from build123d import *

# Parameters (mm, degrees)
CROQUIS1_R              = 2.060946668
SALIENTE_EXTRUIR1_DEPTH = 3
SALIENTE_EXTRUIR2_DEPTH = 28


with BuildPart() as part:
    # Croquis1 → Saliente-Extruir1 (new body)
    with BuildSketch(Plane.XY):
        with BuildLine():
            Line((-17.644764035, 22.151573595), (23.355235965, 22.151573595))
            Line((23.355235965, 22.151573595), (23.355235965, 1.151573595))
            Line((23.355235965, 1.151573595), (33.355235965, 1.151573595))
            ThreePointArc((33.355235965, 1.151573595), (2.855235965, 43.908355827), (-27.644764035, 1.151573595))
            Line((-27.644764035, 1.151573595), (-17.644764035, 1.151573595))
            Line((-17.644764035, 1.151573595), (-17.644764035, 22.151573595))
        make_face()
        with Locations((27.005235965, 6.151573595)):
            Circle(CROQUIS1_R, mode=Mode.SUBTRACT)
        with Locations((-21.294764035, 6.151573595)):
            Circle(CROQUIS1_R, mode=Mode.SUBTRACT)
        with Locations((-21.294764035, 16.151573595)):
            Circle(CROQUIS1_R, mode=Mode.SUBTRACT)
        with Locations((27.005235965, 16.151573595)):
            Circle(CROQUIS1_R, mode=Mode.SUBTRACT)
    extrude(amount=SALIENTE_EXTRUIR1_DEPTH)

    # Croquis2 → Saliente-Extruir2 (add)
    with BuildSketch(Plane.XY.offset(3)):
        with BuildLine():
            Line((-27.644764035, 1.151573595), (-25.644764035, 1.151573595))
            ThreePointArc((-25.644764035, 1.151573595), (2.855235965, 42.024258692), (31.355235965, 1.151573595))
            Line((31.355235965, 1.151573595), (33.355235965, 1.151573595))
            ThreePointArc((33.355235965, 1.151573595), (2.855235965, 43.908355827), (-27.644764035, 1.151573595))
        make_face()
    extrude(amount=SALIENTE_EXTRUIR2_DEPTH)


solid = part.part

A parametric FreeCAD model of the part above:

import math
import FreeCAD as App
import Part
import Sketcher
from FreeCAD import Vector

doc = App.newDocument("Part")
body = doc.addObject("PartDesign::Body", "Body")

sketch1 = body.newObject("Sketcher::SketchObject", "Sketch")
sketch1.AttachmentSupport = (doc.getObject("XY_Plane"), [""])
sketch1.MapMode = "FlatFace"
sketch1.addGeometry(Part.LineSegment(Vector(-17.6, 22.2, 0), Vector(23.4, 22.2, 0)), False)
sketch1.addGeometry(Part.LineSegment(Vector(23.4, 22.2, 0), Vector(23.4, 1.2, 0)), False)
sketch1.addGeometry(Part.LineSegment(Vector(23.4, 1.2, 0), Vector(33.4, 1.2, 0)), False)
sketch1.addGeometry(Part.ArcOfCircle(Part.Circle(Vector(2.9, 11.7, 0), Vector(0, 0, 1), 32.3), math.radians(-19), math.radians(199)), False)
sketch1.addGeometry(Part.LineSegment(Vector(-27.6, 1.2, 0), Vector(-17.6, 1.2, 0)), False)
sketch1.addGeometry(Part.LineSegment(Vector(-17.6, 1.2, 0), Vector(-17.6, 22.2, 0)), False)
sketch1.addGeometry(Part.Circle(Vector(-21.3, 6.2, 0), Vector(0, 0, 1), 2.1), False)
sketch1.addGeometry(Part.Circle(Vector(27, 6.2, 0), Vector(0, 0, 1), 2.1), False)
sketch1.addGeometry(Part.Circle(Vector(-21.3, 16.2, 0), Vector(0, 0, 1), 2.1), False)
sketch1.addGeometry(Part.Circle(Vector(27, 16.2, 0), Vector(0, 0, 1), 2.1), False)
sketch1.addConstraint(Sketcher.Constraint("Coincident", 0, 2, 1, 1))
sketch1.addConstraint(Sketcher.Constraint("Coincident", 1, 2, 2, 1))
sketch1.addConstraint(Sketcher.Constraint("Coincident", 2, 2, 3, 1))
sketch1.addConstraint(Sketcher.Constraint("Coincident", 3, 2, 4, 1))
sketch1.addConstraint(Sketcher.Constraint("Coincident", 4, 2, 5, 1))
sketch1.addConstraint(Sketcher.Constraint("Coincident", 5, 2, 0, 1))
sketch1.addConstraint(Sketcher.Constraint("Horizontal", 0))
sketch1.addConstraint(Sketcher.Constraint("Vertical", 1))
sketch1.addConstraint(Sketcher.Constraint("Horizontal", 2))
sketch1.addConstraint(Sketcher.Constraint("Horizontal", 4))
sketch1.addConstraint(Sketcher.Constraint("Vertical", 5))
sketch1.addConstraint(Sketcher.Constraint("Equal", 6, 7))
sketch1.addConstraint(Sketcher.Constraint("Equal", 7, 8))
sketch1.addConstraint(Sketcher.Constraint("Equal", 8, 9))
sketch1.addConstraint(Sketcher.Constraint("Horizontal", 6, 3, 7, 3))
sketch1.addConstraint(Sketcher.Constraint("Horizontal", 8, 3, 9, 3))
sketch1.addConstraint(Sketcher.Constraint("Horizontal", 2, 2, 3, 2))
sketch1.addConstraint(Sketcher.Constraint("Vertical", 6, 3, 8, 3))
sketch1.addConstraint(Sketcher.Constraint("Vertical", 7, 3, 9, 3))
sketch1.addConstraint(Sketcher.Constraint("Equal", 2, 4))
sketch1.addConstraint(Sketcher.Constraint("DistanceX", 0, 1, 0, 2, 41.0))
sketch1.addConstraint(Sketcher.Constraint("DistanceX", 2, 1, 2, 2, 10.0))
sketch1.addConstraint(Sketcher.Constraint("DistanceY", 1, 2, 1, 1, 21.0))
sketch1.addConstraint(Sketcher.Constraint("DistanceY", 6, 3, 8, 3, 10.0))
sketch1.addConstraint(Sketcher.Constraint("DistanceY", 9, 3, 0, 2, 6.0))
sketch1.addConstraint(Sketcher.Constraint("DistanceY", 6, 3, 3, 3, 5.5))
sketch1.addConstraint(Sketcher.Constraint("DistanceX", 6, 3, 7, 3, 48.3))
sketch1.addConstraint(Sketcher.Constraint("DistanceX", 6, 3, 3, 3, 24.15))
sketch1.addConstraint(Sketcher.Constraint("Diameter", 6, 4.121893))
sketch1.addConstraint(Sketcher.Constraint("DistanceX", -1, 1, 3, 3, 2.855236))
sketch1.addConstraint(Sketcher.Constraint("DistanceY", -1, 1, 3, 3, 11.651574))
pad1 = body.newObject("PartDesign::Pad", "Pad")
pad1.Profile = sketch1
pad1.Length = 3

sketch2 = body.newObject("Sketcher::SketchObject", "Sketch001")
sketch2.AttachmentSupport = (doc.getObject("XY_Plane"), [""])
sketch2.MapMode = "FlatFace"
sketch2.AttachmentOffset = App.Placement(Vector(0, 0, 3), App.Rotation())
sketch2.addGeometry(Part.LineSegment(Vector(-27.6, 1.2, 0), Vector(-25.6, 1.2, 0)), False)
sketch2.addGeometry(Part.ArcOfCircle(Part.Circle(Vector(2.9, 11.7, 0), Vector(0, 0, 1), 30.4), math.radians(-20), math.radians(200)), False)
sketch2.addGeometry(Part.LineSegment(Vector(31.4, 1.2, 0), Vector(33.4, 1.2, 0)), False)
sketch2.addGeometry(Part.ArcOfCircle(Part.Circle(Vector(2.9, 11.7, 0), Vector(0, 0, 1), 32.3), math.radians(-19), math.radians(199)), False)
sketch2.addConstraint(Sketcher.Constraint("Coincident", 0, 2, 1, 2))
sketch2.addConstraint(Sketcher.Constraint("Coincident", 1, 1, 2, 1))
sketch2.addConstraint(Sketcher.Constraint("Coincident", 2, 2, 3, 1))
sketch2.addConstraint(Sketcher.Constraint("Coincident", 3, 2, 0, 1))
sketch2.addConstraint(Sketcher.Constraint("Horizontal", 0))
sketch2.addConstraint(Sketcher.Constraint("Horizontal", 2))
sketch2.addConstraint(Sketcher.Constraint("Coincident", 3, 3, 1, 3))
sketch2.addConstraint(Sketcher.Constraint("Horizontal", 0, 2, 1, 1))
sketch2.addConstraint(Sketcher.Constraint("DistanceX", 0, 1, 0, 2, 2.0))
sketch2.addConstraint(Sketcher.Constraint("DistanceX", 0, 2, 1, 1, 57.0))
sketch2.addConstraint(Sketcher.Constraint("DistanceY", 0, 2, 1, 3, 10.5))
sketch2.addConstraint(Sketcher.Constraint("DistanceX", -1, 1, 1, 3, 2.855236))
sketch2.addConstraint(Sketcher.Constraint("DistanceY", -1, 1, 1, 3, 11.651574))
pad2 = body.newObject("PartDesign::Pad", "Pad001")
pad2.Profile = sketch2
pad2.Length = 28

doc.recompute()
